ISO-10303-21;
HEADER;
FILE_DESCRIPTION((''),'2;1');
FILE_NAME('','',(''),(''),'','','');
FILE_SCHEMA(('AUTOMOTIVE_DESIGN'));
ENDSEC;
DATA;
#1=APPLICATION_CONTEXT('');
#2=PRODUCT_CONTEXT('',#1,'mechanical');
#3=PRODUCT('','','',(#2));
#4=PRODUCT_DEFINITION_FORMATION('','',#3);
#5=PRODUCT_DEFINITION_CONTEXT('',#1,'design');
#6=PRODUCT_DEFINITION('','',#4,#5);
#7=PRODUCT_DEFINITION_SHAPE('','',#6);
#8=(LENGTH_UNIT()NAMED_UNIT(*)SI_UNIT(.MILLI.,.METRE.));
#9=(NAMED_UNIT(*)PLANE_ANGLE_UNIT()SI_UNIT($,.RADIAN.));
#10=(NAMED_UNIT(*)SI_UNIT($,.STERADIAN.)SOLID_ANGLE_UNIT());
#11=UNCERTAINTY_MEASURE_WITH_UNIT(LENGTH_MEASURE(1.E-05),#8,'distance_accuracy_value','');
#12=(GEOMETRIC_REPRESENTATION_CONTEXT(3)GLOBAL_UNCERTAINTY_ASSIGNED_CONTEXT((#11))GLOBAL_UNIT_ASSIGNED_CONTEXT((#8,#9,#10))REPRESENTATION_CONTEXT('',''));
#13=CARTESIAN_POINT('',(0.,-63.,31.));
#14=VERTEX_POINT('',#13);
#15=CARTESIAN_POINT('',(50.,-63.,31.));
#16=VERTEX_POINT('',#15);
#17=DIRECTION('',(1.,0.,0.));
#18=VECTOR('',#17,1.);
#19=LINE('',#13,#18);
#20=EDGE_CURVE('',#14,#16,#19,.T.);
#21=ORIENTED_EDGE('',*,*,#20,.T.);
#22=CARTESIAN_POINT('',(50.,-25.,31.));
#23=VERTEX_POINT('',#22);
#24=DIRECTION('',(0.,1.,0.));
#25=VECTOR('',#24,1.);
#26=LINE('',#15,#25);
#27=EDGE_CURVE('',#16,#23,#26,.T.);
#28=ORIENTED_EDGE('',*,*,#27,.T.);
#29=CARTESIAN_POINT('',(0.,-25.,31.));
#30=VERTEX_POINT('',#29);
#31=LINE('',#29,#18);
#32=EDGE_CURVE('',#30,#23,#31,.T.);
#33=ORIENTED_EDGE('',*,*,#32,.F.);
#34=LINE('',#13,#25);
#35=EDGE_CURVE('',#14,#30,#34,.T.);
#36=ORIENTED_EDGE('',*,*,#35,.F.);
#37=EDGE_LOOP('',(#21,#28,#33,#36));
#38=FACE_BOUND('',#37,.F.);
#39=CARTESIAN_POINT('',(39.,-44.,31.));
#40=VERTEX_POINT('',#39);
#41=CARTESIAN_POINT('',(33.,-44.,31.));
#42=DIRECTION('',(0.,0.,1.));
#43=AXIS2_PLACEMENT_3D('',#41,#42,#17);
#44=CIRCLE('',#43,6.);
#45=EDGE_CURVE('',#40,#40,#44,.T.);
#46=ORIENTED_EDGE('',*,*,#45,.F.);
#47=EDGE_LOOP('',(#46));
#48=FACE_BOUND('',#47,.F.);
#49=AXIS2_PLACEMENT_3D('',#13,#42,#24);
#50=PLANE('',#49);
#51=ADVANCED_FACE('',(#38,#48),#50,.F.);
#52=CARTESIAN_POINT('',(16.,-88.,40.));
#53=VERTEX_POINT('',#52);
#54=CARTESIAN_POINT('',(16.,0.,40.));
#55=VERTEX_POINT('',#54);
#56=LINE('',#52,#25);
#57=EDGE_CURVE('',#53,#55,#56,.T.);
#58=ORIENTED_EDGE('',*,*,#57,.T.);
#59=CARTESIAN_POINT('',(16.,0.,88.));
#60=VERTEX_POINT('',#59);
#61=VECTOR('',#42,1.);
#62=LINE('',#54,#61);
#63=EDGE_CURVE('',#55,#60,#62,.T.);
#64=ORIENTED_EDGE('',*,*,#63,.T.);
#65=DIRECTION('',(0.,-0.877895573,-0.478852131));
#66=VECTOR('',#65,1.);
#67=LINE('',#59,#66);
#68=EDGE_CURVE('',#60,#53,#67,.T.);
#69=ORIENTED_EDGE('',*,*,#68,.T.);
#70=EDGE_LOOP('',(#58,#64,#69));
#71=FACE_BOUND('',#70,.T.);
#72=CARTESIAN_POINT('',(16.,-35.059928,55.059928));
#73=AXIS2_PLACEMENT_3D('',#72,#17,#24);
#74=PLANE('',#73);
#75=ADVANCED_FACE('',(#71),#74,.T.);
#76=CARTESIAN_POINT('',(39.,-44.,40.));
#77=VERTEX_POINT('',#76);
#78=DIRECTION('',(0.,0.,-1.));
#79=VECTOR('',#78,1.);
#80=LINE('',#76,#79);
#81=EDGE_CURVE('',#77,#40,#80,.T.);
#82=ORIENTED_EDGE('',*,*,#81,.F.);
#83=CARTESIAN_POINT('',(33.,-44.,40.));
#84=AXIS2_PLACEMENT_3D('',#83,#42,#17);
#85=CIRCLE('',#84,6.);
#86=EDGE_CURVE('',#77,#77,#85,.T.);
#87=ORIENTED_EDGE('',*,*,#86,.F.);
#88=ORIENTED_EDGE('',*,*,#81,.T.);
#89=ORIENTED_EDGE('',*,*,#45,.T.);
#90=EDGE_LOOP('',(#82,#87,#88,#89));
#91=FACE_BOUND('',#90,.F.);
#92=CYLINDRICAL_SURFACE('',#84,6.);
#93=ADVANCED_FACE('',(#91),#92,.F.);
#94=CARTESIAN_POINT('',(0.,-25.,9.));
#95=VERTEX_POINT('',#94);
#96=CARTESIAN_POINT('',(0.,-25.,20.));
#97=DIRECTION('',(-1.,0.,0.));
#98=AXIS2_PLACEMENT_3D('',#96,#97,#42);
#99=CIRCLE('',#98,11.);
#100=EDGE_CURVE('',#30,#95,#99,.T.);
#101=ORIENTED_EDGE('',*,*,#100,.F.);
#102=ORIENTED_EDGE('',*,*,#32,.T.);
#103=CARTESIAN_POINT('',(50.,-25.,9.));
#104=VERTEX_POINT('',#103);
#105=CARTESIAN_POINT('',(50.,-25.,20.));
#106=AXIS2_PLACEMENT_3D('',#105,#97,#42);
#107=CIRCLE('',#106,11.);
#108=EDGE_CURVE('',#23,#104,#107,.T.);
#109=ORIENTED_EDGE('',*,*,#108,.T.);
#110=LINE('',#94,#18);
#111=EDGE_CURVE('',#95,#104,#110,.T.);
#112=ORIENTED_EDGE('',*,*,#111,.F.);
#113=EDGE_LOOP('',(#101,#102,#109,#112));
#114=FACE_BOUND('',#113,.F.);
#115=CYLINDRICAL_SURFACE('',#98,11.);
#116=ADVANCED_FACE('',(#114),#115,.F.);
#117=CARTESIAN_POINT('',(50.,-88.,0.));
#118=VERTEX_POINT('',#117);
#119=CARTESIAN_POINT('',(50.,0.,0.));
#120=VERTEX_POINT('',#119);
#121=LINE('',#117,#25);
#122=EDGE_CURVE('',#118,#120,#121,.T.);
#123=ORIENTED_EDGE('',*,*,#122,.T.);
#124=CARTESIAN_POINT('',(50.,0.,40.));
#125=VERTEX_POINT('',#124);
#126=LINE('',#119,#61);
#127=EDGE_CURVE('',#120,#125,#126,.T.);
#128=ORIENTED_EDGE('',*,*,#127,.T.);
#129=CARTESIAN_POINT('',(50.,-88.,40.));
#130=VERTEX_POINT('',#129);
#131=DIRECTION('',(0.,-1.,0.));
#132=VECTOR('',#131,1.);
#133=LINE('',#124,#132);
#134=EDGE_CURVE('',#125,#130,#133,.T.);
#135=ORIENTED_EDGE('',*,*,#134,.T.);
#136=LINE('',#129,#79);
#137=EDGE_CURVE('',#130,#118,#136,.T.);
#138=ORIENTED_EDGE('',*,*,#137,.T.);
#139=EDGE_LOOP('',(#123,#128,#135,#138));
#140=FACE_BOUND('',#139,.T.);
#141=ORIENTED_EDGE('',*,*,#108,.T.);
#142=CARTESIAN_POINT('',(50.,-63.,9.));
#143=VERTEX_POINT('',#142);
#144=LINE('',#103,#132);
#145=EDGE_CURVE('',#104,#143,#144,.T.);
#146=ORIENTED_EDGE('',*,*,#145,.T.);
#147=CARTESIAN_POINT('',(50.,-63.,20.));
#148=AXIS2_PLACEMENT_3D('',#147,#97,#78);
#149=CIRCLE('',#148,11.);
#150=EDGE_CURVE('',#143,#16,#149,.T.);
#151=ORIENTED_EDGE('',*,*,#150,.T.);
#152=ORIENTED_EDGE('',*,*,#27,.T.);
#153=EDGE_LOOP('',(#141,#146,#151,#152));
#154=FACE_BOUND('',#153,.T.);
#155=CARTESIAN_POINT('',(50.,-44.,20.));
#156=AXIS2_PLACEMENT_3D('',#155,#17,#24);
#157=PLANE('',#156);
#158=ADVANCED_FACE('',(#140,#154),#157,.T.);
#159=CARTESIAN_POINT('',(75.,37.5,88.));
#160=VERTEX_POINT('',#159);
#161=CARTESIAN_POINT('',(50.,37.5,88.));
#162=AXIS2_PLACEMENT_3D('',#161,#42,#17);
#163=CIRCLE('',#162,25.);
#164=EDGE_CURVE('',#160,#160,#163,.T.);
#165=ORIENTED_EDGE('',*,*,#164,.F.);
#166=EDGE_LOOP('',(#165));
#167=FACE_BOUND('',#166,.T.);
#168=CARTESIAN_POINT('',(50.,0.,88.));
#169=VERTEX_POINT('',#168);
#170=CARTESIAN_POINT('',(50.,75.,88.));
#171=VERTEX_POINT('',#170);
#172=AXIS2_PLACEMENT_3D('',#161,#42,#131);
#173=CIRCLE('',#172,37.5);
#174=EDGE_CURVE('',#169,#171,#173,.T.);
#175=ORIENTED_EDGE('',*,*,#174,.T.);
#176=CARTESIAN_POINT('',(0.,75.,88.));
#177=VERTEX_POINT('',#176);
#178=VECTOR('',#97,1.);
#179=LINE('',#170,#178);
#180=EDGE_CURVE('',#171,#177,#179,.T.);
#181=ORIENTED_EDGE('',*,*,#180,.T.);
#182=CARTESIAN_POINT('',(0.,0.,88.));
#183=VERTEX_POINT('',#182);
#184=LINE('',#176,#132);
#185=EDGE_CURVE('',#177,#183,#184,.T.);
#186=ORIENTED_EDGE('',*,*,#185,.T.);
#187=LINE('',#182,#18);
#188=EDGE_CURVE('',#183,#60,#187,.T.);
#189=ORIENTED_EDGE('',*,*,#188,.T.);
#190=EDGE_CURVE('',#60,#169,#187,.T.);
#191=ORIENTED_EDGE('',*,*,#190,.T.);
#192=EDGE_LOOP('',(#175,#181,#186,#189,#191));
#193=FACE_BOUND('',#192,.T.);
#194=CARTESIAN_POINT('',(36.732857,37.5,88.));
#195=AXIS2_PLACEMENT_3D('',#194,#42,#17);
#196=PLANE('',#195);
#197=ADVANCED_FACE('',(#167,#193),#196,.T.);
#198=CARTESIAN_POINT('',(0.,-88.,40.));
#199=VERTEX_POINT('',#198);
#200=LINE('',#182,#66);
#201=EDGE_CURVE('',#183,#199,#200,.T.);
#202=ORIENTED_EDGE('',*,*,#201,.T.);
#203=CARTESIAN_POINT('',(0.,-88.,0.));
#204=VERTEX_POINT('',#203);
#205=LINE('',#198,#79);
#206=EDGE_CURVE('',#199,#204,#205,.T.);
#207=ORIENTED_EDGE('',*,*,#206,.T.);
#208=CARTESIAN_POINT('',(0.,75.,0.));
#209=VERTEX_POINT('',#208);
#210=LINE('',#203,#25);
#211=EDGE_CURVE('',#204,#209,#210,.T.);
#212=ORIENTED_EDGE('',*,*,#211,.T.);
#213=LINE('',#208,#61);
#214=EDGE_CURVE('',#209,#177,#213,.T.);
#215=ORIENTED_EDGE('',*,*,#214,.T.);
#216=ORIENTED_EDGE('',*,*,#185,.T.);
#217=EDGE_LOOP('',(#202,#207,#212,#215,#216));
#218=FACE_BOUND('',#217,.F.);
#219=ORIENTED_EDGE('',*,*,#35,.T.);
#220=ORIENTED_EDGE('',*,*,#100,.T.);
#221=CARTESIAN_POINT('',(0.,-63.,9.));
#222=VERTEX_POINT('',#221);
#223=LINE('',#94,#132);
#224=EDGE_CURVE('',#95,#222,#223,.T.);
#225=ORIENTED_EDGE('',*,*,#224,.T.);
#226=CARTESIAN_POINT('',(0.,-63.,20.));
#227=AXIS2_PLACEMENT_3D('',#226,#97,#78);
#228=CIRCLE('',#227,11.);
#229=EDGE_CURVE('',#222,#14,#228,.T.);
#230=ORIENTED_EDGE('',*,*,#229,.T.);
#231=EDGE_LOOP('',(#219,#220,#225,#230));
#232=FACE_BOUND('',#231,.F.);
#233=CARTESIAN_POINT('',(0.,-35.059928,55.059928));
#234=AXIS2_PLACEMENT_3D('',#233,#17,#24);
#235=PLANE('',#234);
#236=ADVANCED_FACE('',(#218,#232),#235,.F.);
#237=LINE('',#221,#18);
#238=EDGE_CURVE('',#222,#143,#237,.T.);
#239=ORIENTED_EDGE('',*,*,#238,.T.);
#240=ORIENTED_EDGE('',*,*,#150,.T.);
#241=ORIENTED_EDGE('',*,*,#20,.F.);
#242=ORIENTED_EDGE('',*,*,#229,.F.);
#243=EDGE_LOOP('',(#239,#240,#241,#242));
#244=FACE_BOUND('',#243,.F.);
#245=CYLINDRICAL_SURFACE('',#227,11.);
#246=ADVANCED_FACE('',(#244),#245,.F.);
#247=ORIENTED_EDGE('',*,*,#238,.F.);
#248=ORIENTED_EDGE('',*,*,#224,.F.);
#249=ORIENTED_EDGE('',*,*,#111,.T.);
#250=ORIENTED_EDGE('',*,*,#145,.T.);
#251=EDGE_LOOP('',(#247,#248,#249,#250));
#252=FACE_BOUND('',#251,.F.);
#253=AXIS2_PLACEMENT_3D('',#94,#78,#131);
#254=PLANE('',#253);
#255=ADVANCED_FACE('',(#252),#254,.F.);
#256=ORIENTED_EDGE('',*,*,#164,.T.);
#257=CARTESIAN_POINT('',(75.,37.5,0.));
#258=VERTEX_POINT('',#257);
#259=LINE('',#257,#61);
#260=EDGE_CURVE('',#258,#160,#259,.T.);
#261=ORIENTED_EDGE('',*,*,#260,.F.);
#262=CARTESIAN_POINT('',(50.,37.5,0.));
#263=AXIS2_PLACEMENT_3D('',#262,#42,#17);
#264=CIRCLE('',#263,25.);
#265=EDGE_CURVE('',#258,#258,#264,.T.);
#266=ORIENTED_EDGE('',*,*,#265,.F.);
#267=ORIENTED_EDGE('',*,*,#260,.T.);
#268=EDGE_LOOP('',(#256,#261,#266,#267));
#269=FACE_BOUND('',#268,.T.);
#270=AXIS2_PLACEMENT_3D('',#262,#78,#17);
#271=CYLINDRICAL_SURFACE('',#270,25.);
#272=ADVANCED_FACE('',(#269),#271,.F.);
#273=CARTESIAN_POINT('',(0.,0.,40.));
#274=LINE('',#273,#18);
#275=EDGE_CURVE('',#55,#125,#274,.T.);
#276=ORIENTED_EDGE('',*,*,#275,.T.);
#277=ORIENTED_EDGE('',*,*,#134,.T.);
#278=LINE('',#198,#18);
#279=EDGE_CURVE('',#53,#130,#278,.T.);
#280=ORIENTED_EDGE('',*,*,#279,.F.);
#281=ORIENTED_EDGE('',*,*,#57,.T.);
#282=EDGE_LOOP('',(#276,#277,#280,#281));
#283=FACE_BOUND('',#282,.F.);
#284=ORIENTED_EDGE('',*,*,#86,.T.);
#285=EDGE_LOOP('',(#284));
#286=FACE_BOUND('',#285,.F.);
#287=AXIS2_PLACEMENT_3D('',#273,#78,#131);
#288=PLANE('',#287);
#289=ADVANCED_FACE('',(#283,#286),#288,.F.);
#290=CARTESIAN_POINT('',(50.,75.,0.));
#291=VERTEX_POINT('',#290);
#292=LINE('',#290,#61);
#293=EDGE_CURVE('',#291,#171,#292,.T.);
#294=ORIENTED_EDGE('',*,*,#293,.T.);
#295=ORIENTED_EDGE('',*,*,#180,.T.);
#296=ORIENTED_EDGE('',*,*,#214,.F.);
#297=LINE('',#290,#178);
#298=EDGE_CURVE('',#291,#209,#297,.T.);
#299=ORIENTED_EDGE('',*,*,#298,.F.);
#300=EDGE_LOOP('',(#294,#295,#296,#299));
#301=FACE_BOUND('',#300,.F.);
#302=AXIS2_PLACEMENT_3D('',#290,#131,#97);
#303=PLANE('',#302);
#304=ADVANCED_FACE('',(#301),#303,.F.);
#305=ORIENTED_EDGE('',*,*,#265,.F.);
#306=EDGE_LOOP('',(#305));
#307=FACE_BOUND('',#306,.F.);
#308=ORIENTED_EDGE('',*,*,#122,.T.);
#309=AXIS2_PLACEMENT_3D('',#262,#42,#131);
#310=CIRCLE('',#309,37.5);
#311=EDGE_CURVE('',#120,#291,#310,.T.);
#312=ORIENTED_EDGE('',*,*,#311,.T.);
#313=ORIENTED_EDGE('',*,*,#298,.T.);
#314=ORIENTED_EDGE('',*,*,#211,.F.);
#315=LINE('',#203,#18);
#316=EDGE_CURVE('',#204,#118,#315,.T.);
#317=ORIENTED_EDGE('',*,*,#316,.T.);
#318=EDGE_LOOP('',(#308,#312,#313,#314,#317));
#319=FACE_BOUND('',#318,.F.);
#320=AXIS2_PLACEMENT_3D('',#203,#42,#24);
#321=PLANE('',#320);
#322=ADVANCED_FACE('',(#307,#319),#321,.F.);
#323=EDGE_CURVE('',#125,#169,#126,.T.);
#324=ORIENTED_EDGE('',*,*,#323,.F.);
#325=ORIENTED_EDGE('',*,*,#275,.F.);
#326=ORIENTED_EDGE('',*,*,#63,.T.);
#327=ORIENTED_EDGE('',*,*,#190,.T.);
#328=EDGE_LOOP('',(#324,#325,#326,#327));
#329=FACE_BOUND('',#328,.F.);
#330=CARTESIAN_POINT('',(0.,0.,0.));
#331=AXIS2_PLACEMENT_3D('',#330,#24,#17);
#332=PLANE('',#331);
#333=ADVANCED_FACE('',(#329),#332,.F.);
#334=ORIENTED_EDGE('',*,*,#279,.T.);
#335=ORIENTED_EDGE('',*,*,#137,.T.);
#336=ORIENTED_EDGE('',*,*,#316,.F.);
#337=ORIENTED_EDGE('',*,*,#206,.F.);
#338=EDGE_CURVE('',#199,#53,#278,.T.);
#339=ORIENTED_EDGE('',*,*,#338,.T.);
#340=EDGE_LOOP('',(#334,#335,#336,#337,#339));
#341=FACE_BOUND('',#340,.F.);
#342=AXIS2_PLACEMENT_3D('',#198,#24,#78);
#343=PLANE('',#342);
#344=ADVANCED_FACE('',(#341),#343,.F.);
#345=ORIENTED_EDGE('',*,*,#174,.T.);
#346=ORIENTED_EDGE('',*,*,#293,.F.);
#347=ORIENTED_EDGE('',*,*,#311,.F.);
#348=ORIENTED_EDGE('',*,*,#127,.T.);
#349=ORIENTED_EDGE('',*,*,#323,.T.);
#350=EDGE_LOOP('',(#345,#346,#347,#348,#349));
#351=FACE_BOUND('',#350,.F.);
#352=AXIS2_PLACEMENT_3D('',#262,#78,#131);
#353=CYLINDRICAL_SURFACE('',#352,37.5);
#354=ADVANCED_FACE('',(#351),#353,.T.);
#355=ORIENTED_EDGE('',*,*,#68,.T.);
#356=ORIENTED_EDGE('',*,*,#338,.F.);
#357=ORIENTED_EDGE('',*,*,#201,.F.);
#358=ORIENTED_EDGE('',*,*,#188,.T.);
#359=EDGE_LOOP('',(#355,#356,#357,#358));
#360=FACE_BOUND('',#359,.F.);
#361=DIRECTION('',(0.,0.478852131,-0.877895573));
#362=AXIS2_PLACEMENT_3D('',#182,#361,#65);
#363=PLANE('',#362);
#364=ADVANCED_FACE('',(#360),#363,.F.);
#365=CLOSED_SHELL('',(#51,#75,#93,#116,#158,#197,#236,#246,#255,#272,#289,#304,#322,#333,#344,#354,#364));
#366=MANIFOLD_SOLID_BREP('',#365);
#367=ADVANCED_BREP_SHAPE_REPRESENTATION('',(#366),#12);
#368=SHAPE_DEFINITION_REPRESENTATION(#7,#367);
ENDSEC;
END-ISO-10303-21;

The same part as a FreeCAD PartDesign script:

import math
import FreeCAD as App
import Part
import Sketcher

V = App.Vector
Q = App.Units.Quantity

doc = App.newDocument("Part")
body = doc.addObject("PartDesign::Body", "Body")

sketch1 = doc.addObject("Sketcher::SketchObject", "Sketch")
body.addObject(sketch1)
sketch1.AttachmentSupport = (doc.XY_Plane, [""])
sketch1.MapMode = "FlatFace"
sketch1.addGeometry([
    Part.LineSegment(V(0, 75, 0), V(0, 0, 0)),
    Part.LineSegment(V(0, 0, 0), V(50, 0, 0)),
    Part.ArcOfCircle(Part.Circle(V(50, 38, 0), V(0, 0, 1), 38), math.radians(-90), math.radians(90)),
    Part.LineSegment(V(50, 75, 0), V(0, 75, 0)),
    Part.Circle(V(50, 38, 0), V(0, 0, 1), 25),
], False)
sketch1.addConstraint([
    Sketcher.Constraint("Coincident", 0, 2, 1, 1),
    Sketcher.Constraint("Tangent", 1, 2, 2, 1),
    Sketcher.Constraint("Tangent", 2, 2, 3, 1),
    Sketcher.Constraint("Coincident", 3, 2, 0, 1),
    Sketcher.Constraint("Vertical", 0),
    Sketcher.Constraint("Horizontal", 1),
    Sketcher.Constraint("Horizontal", 3),
    Sketcher.Constraint("Coincident", 0, 2, -1, 1),
    Sketcher.Constraint("Coincident", 4, 3, 2, 3),
    Sketcher.Constraint("Diameter", 4, Q("50 mm")),
    Sketcher.Constraint("Radius", 2, Q("37.5 mm")),
    Sketcher.Constraint("DistanceX", 1, 1, 1, 2, Q("50 mm")),
])
pad1 = doc.addObject("PartDesign::Pad", "Pad")
body.addObject(pad1)
pad1.Profile = sketch1
pad1.Length = 88

sketch2 = doc.addObject("Sketcher::SketchObject", "Sketch001")
body.addObject(sketch2)
sketch2.AttachmentSupport = (doc.YZ_Plane, [""])
sketch2.MapMode = "FlatFace"
sketch2.addGeometry([
    Part.LineSegment(V(-88, 0, 0), V(0, 0, 0)),
    Part.LineSegment(V(0, 0, 0), V(0, 40, 0)),
    Part.LineSegment(V(0, 40, 0), V(-88, 40, 0)),
    Part.LineSegment(V(-88, 40, 0), V(-88, 0, 0)),
    Part.LineSegment(V(-63, 31, 0), V(-25, 31, 0)),
    Part.ArcOfCircle(Part.Circle(V(-25, 20, 0), V(0, 0, 1), 11), math.radians(-90), math.radians(90)),
    Part.LineSegment(V(-25, 9, 0), V(-63, 9, 0)),
    Part.ArcOfCircle(Part.Circle(V(-63, 20, 0), V(0, 0, 1), 11), math.radians(90), math.radians(270)),
], False)
sketch2.addConstraint([
    Sketcher.Constraint("Coincident", 0, 2, 1, 1),
    Sketcher.Constraint("Coincident", 1, 2, 2, 1),
    Sketcher.Constraint("Coincident", 2, 2, 3, 1),
    Sketcher.Constraint("Coincident", 3, 2, 0, 1),
    Sketcher.Constraint("Tangent", 4, 2, 5, 2),
    Sketcher.Constraint("Tangent", 5, 1, 6, 1),
    Sketcher.Constraint("Tangent", 6, 2, 7, 2),
    Sketcher.Constraint("Tangent", 7, 1, 4, 1),
    Sketcher.Constraint("Horizontal", 0),
    Sketcher.Constraint("Vertical", 1),
    Sketcher.Constraint("Horizontal", 2),
    Sketcher.Constraint("Vertical", 3),
    Sketcher.Constraint("Horizontal", 4),
    Sketcher.Constraint("Horizontal", 6),
    Sketcher.Constraint("Coincident", 0, 2, -1, 1),
    Sketcher.Constraint("Radius", 5, Q("11 mm")),
    Sketcher.Constraint("DistanceX", 0, 1, 0, 2, Q("88 mm")),
    Sketcher.Constraint("DistanceX", 4, 1, 4, 2, Q("38 mm")),
    Sketcher.Constraint("DistanceY", 1, 1, 1, 2, Q("40 mm")),
    Sketcher.Constraint("DistanceX", 5, 3, -1, 1, Q("25 mm")),
    Sketcher.Constraint("DistanceY", -1, 1, 5, 3, Q("20 mm")),
])
pad2 = doc.addObject("PartDesign::Pad", "Pad001")
body.addObject(pad2)
pad2.Profile = sketch2
pad2.Length = 50

sketch3 = doc.addObject("Sketcher::SketchObject", "Sketch002")
body.addObject(sketch3)
sketch3.AttachmentSupport = (doc.YZ_Plane, [""])
sketch3.MapMode = "FlatFace"
sketch3.addGeometry([
    Part.LineSegment(V(-88, 40, 0), V(0, 40, 0)),
    Part.LineSegment(V(0, 40, 0), V(0, 88, 0)),
    Part.LineSegment(V(0, 88, 0), V(-88, 40, 0)),
], False)
sketch3.addConstraint([
    Sketcher.Constraint("Coincident", 0, 2, 1, 1),
    Sketcher.Constraint("Coincident", 1, 2, 2, 1),
    Sketcher.Constraint("Coincident", 2, 2, 0, 1),
    Sketcher.Constraint("Horizontal", 0),
    Sketcher.Constraint("Vertical", 1),
    Sketcher.Constraint("PointOnObject", 0, 2, -2),
    Sketcher.Constraint("DistanceX", 0, 1, 0, 2, Q("88 mm")),
    Sketcher.Constraint("DistanceY", 1, 1, 1, 2, Q("48 mm")),
    Sketcher.Constraint("DistanceY", -1, 1, 0, 2, Q("40 mm")),
])
pad3 = doc.addObject("PartDesign::Pad", "Pad002")
body.addObject(pad3)
pad3.Profile = sketch3
pad3.Length = 16

sketch4 = doc.addObject("Sketcher::SketchObject", "Sketch003")
body.addObject(sketch4)
sketch4.AttachmentSupport = (doc.XY_Plane, [""])
sketch4.MapMode = "FlatFace"
sketch4.AttachmentOffset = App.Placement(V(0, 0, 40), App.Rotation())
sketch4.addGeometry(Part.Circle(V(33, -44, 0), V(0, 0, 1), 6), False)
sketch4.addConstraint([
    Sketcher.Constraint("Diameter", 0, Q("12 mm")),
    Sketcher.Constraint("DistanceX", -1, 1, 0, 3, Q("33 mm")),
    Sketcher.Constraint("DistanceY", 0, 3, -1, 1, Q("44 mm")),
])
pocket1 = doc.addObject("PartDesign::Pocket", "Pocket")
body.addObject(pocket1)
pocket1.Profile = sketch4
pocket1.Length = 9

doc.recompute()
